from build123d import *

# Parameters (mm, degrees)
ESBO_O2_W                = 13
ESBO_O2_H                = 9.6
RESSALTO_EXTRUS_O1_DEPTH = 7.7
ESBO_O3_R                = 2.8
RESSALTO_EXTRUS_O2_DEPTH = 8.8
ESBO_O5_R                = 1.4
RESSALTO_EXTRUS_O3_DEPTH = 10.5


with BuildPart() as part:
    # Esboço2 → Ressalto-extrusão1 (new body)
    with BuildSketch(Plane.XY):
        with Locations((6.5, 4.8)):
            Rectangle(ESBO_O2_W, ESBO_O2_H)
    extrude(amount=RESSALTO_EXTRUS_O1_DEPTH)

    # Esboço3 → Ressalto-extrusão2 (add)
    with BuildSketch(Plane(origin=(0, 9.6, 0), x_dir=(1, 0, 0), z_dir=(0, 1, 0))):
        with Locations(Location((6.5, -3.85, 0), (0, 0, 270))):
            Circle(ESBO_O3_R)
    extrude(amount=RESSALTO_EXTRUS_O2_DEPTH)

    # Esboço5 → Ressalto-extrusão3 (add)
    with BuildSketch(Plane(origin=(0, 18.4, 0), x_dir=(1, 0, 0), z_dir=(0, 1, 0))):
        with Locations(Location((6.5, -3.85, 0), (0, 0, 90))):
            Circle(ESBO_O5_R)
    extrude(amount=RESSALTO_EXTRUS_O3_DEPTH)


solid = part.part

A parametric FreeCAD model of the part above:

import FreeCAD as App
import Part
import Sketcher

V = App.Vector
Q = App.Units.Quantity

doc = App.newDocument("Part")
body = doc.addObject("PartDesign::Body", "Body")

# Sketch on XY plane
sketch1 = body.newObject("Sketcher::SketchObject", "Sketch")
sketch1.AttachmentSupport = (doc.getObject("XY_Plane"), [""])
sketch1.MapMode = "FlatFace"
sketch1.addGeometry([
    Part.LineSegment(V(0, 9.6, 0), V(0, 0, 0)),
    Part.LineSegment(V(0, 0, 0), V(13, 0, 0)),
    Part.LineSegment(V(13, 0, 0), V(13, 9.6, 0)),
    Part.LineSegment(V(13, 9.6, 0), V(0, 9.6, 0)),
], False)
sketch1.addConstraint([
    Sketcher.Constraint("Coincident", 0, 2, 1, 1),
    Sketcher.Constraint("Coincident", 1, 2, 2, 1),
    Sketcher.Constraint("Coincident", 2, 2, 3, 1),
    Sketcher.Constraint("Coincident", 3, 2, 0, 1),
    Sketcher.Constraint("Vertical", 0),
    Sketcher.Constraint("Horizontal", 1),
    Sketcher.Constraint("Vertical", 2),
    Sketcher.Constraint("Horizontal", 3),
    Sketcher.Constraint("Coincident", 0, 2, -1, 1),
    Sketcher.Constraint("DistanceX", 1, 1, 1, 2, Q("13 mm")),
    Sketcher.Constraint("DistanceY", 0, 2, 0, 1, Q("9.6 mm")),
])
pad1 = body.newObject("PartDesign::Pad", "Pad")
pad1.Profile = sketch1
pad1.Length = 7.7

# Sketch on XZ plane
sketch2 = body.newObject("Sketcher::SketchObject", "Sketch001")
sketch2.AttachmentSupport = (doc.getObject("XZ_Plane"), [""])
sketch2.MapMode = "FlatFace"
sketch2.AttachmentOffset = App.Placement(V(0, 0, -9.6), App.Rotation())
sketch2.addGeometry(Part.Circle(V(6.5, 3.85, 0), V(0, 0, 1), 2.8), False)
sketch2.addConstraint([
    Sketcher.Constraint("Diameter", 0, Q("5.6 mm")),
    Sketcher.Constraint("DistanceX", -1, 1, 0, 3, Q("6.5 mm")),
    Sketcher.Constraint("DistanceY", -1, 1, 0, 3, Q("3.85 mm")),
])
pad2 = body.newObject("PartDesign::Pad", "Pad001")
pad2.Profile = sketch2
pad2.Length = 8.8
pad2.Reversed = True

# Sketch on XZ plane
sketch3 = body.newObject("Sketcher::SketchObject", "Sketch002")
sketch3.AttachmentSupport = (doc.getObject("XZ_Plane"), [""])
sketch3.MapMode = "FlatFace"
sketch3.AttachmentOffset = App.Placement(V(0, 0, -18.4), App.Rotation())
sketch3.addGeometry(Part.Circle(V(6.5, 3.85, 0), V(0, 0, 1), 1.4), False)
sketch3.addConstraint([
    Sketcher.Constraint("Diameter", 0, Q("2.8 mm")),
    Sketcher.Constraint("DistanceX", -1, 1, 0, 3, Q("6.5 mm")),
    Sketcher.Constraint("DistanceY", -1, 1, 0, 3, Q("3.85 mm")),
])
pad3 = body.newObject("PartDesign::Pad", "Pad002")
pad3.Profile = sketch3
pad3.Length = 10.5
pad3.Reversed = True

doc.recompute()
